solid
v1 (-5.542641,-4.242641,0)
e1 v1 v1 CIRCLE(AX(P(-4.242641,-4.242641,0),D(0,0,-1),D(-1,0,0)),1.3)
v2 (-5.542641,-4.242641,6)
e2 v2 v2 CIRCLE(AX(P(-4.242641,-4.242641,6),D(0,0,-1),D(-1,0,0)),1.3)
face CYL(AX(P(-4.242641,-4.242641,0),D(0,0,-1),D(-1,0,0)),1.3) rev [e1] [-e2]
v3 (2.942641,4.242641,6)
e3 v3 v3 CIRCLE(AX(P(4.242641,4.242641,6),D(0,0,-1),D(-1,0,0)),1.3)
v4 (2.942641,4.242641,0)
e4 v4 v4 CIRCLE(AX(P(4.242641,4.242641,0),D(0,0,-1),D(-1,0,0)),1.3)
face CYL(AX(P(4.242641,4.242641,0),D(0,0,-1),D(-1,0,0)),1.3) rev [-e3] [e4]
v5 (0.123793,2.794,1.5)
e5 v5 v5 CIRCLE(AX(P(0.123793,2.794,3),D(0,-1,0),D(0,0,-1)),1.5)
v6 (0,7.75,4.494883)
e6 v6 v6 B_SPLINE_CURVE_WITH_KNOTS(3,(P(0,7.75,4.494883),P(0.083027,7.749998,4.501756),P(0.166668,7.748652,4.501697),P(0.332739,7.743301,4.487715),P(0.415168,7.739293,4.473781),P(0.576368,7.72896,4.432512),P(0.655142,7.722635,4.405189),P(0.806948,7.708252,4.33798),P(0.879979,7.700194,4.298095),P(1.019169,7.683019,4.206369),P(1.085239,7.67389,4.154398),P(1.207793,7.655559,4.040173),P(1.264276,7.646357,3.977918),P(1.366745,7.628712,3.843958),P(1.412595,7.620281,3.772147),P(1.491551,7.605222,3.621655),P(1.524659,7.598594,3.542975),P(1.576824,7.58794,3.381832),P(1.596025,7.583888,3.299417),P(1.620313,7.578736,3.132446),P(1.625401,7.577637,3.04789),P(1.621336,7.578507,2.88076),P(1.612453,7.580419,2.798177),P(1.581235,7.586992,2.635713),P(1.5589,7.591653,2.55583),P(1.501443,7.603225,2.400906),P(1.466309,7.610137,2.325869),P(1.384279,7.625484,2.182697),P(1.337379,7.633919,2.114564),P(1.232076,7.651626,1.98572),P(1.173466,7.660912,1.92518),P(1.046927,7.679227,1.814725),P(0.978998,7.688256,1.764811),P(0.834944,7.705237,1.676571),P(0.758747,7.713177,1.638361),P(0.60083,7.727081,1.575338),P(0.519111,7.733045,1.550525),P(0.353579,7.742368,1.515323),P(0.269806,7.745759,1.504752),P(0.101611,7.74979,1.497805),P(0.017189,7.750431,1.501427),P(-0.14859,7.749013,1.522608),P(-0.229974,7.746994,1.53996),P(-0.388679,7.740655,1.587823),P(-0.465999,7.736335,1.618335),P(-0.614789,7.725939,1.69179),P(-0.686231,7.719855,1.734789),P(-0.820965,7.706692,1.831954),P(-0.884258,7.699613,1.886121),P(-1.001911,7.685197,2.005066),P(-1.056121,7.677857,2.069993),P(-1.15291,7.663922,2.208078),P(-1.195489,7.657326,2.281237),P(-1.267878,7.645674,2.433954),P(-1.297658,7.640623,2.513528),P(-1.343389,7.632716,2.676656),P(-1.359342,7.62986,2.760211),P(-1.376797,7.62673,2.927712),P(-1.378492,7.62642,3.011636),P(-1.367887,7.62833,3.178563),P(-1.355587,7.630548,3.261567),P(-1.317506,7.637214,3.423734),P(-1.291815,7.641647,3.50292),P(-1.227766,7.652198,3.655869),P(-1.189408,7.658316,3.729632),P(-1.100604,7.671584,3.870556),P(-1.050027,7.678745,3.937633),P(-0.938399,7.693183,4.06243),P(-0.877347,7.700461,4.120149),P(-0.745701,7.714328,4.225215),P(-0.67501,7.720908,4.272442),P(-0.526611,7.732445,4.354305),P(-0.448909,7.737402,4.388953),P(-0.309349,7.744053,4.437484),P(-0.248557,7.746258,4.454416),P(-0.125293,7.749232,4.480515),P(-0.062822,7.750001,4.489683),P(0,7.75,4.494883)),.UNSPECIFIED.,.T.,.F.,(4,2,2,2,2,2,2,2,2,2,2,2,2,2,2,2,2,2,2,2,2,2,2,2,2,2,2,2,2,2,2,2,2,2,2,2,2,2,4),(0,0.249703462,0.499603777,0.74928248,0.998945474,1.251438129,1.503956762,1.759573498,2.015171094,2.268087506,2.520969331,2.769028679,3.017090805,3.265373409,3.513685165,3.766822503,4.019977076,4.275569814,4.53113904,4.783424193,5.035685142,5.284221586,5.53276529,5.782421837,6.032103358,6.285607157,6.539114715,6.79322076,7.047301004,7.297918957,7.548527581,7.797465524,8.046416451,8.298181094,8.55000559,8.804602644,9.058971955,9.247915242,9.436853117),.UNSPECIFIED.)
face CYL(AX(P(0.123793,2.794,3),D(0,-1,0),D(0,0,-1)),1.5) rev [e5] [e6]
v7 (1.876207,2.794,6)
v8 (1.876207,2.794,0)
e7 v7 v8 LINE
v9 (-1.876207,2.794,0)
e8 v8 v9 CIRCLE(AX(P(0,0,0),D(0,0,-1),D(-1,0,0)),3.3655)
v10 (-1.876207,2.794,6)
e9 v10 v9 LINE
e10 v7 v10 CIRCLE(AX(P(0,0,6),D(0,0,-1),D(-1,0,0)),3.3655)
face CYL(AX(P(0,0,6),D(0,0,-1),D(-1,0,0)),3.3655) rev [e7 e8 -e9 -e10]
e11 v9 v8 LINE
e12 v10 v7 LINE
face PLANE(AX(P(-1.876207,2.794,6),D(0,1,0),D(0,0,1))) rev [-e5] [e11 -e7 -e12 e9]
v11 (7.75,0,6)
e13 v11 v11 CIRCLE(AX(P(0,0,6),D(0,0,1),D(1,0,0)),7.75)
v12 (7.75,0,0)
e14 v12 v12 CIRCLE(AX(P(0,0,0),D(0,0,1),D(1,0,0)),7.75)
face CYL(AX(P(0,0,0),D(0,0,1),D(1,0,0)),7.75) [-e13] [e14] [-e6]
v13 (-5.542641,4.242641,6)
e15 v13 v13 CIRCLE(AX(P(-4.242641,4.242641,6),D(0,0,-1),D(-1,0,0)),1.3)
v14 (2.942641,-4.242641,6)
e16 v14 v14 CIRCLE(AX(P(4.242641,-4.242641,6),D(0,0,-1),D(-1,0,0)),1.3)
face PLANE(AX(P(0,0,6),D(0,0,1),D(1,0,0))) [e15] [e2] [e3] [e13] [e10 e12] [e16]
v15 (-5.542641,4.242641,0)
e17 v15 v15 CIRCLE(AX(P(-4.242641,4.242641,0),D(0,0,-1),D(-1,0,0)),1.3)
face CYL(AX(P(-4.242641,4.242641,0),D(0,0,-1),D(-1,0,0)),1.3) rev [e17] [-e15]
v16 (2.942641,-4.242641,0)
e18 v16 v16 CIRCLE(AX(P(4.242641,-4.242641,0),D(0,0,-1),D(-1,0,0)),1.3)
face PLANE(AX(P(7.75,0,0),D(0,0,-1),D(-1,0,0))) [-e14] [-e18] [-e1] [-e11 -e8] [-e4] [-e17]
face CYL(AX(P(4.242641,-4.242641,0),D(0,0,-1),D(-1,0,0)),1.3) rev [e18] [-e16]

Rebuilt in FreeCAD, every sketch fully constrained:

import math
import FreeCAD as App
import Part
import Sketcher

V = App.Vector


def add_polygon(sketch, points):
    """Adds a closed chain of lines whose ends are joined by coincident constraints."""
    first, n = sketch.GeometryCount, len(points)
    for a, b in zip(points, points[1:] + points[:1]):
        sketch.addGeometry(Part.LineSegment(App.Vector(*a, 0), App.Vector(*b, 0)), False)
    for i in range(n):
        sketch.addConstraint(Sketcher.Constraint("Coincident", first + i, 2, first + (i + 1) % n, 1))

doc = App.newDocument("Part")
body = doc.addObject("PartDesign::Body", "Body")

# Sketch on XZ plane
sketch1 = body.newObject("Sketcher::SketchObject", "Sketch")
sketch1.AttachmentSupport = (doc.getObject("XZ_Plane"), [""])
sketch1.MapMode = "FlatFace"
add_polygon(sketch1, [(0, 0), (0, 6), (8, 6), (8, 0)])  # lines 0-3
sketch1.addConstraint([
    Sketcher.Constraint("Vertical", 0),
    Sketcher.Constraint("Horizontal", 1),
    Sketcher.Constraint("Vertical", 2),
    Sketcher.Constraint("Horizontal", 3),
    Sketcher.Constraint("Coincident", 3, 2, -1, 1),
    Sketcher.Constraint("DistanceY", 0, 1, 0, 2, 6.0),
    Sketcher.Constraint("DistanceX", 1, 1, 1, 2, 7.75),
])
revolution = body.newObject("PartDesign::Revolution", "Revolution")
revolution.Profile = sketch1
revolution.ReferenceAxis = (sketch1, ["V_Axis"])
revolution.Angle = 360

# Sketch on XY plane
sketch2 = body.newObject("Sketcher::SketchObject", "Sketch001")
sketch2.AttachmentSupport = (doc.getObject("XY_Plane"), [""])
sketch2.MapMode = "FlatFace"
sketch2.addGeometry([
    Part.LineSegment(V(-1.9, 2.8, 0), V(1.9, 2.8, 0)),
    Part.ArcOfCircle(Part.Circle(V(0, 0, 0), V(0, 0, 1), 3.4), math.radians(124), math.radians(416)),
], False)
sketch2.addConstraint([
    Sketcher.Constraint("Coincident", 0, 1, 1, 1),
    Sketcher.Constraint("Coincident", 1, 2, 0, 2),
    Sketcher.Constraint("Horizontal", 0),
    Sketcher.Constraint("Coincident", 1, 3, -1, 1),
    Sketcher.Constraint("Radius", 1, 3.3655),
    Sketcher.Constraint("DistanceY", -1, 1, 0, 1, 2.794),
])
pocket1 = body.newObject("PartDesign::Pocket", "Pocket")
pocket1.Profile = sketch2
pocket1.Type = "ThroughAll"
pocket1.Reversed = True

# Sketch on XZ plane
sketch3 = body.newObject("Sketcher::SketchObject", "Sketch002")
sketch3.AttachmentSupport = (doc.getObject("XZ_Plane"), [""])
sketch3.MapMode = "FlatFace"
sketch3.AttachmentOffset = App.Placement(V(0, 0, -2.794), App.Rotation())
sketch3.addGeometry(Part.Circle(V(0.1, 3, 0), V(0, 0, 1), 1.5), False)
sketch3.addConstraint([
    Sketcher.Constraint("Diameter", 0, 3.0),
    Sketcher.Constraint("DistanceY", -1, 1, 0, 3, 3.0),
    Sketcher.Constraint("DistanceX", -1, 1, 0, 3, 0.123793),
])
doc.recompute()
hole = body.newObject("PartDesign::Hole", "Hole")
hole.Profile = sketch3
hole.ThreadType = "None"
hole.Diameter = 3
hole.DepthType = "Dimension"
hole.Depth = 4.956
hole.DrillPoint = "Flat"

# Sketch on XY plane
sketch4 = body.newObject("Sketcher::SketchObject", "Sketch003")
sketch4.AttachmentSupport = (doc.getObject("XY_Plane"), [""])
sketch4.MapMode = "FlatFace"
sketch4.addGeometry([
    Part.Circle(V(4.2, -4.2, 0), V(0, 0, 1), 1.3),
    Part.Circle(V(-4.2, 4.2, 0), V(0, 0, 1), 1.3),
    Part.Circle(V(4.2, 4.2, 0), V(0, 0, 1), 1.3),
    Part.Circle(V(-4.2, -4.2, 0), V(0, 0, 1), 1.3),
], False)
sketch4.addConstraint([
    Sketcher.Constraint("Equal", 0, 1),
    Sketcher.Constraint("Equal", 1, 2),
    Sketcher.Constraint("Equal", 2, 3),
    Sketcher.Constraint("Symmetric", 0, 3, 1, 3, -1, 1),
    Sketcher.Constraint("Symmetric", 2, 3, 3, 3, -1, 1),
    Sketcher.Constraint("Symmetric", 1, 3, 2, 3, -2),
    Sketcher.Constraint("Diameter", 0, 2.6),
    Sketcher.Constraint("DistanceX", -1, 1, 0, 3, 4.242641),
    Sketcher.Constraint("DistanceY", 0, 3, -1, 1, 4.242641),
])
doc.recompute()
hole2 = body.newObject("PartDesign::Hole", "Hole001")
hole2.Profile = sketch4
hole2.ThreadType = "None"
hole2.Diameter = 2.6
hole2.DepthType = "ThroughAll"
hole2.Reversed = True

doc.recompute()
